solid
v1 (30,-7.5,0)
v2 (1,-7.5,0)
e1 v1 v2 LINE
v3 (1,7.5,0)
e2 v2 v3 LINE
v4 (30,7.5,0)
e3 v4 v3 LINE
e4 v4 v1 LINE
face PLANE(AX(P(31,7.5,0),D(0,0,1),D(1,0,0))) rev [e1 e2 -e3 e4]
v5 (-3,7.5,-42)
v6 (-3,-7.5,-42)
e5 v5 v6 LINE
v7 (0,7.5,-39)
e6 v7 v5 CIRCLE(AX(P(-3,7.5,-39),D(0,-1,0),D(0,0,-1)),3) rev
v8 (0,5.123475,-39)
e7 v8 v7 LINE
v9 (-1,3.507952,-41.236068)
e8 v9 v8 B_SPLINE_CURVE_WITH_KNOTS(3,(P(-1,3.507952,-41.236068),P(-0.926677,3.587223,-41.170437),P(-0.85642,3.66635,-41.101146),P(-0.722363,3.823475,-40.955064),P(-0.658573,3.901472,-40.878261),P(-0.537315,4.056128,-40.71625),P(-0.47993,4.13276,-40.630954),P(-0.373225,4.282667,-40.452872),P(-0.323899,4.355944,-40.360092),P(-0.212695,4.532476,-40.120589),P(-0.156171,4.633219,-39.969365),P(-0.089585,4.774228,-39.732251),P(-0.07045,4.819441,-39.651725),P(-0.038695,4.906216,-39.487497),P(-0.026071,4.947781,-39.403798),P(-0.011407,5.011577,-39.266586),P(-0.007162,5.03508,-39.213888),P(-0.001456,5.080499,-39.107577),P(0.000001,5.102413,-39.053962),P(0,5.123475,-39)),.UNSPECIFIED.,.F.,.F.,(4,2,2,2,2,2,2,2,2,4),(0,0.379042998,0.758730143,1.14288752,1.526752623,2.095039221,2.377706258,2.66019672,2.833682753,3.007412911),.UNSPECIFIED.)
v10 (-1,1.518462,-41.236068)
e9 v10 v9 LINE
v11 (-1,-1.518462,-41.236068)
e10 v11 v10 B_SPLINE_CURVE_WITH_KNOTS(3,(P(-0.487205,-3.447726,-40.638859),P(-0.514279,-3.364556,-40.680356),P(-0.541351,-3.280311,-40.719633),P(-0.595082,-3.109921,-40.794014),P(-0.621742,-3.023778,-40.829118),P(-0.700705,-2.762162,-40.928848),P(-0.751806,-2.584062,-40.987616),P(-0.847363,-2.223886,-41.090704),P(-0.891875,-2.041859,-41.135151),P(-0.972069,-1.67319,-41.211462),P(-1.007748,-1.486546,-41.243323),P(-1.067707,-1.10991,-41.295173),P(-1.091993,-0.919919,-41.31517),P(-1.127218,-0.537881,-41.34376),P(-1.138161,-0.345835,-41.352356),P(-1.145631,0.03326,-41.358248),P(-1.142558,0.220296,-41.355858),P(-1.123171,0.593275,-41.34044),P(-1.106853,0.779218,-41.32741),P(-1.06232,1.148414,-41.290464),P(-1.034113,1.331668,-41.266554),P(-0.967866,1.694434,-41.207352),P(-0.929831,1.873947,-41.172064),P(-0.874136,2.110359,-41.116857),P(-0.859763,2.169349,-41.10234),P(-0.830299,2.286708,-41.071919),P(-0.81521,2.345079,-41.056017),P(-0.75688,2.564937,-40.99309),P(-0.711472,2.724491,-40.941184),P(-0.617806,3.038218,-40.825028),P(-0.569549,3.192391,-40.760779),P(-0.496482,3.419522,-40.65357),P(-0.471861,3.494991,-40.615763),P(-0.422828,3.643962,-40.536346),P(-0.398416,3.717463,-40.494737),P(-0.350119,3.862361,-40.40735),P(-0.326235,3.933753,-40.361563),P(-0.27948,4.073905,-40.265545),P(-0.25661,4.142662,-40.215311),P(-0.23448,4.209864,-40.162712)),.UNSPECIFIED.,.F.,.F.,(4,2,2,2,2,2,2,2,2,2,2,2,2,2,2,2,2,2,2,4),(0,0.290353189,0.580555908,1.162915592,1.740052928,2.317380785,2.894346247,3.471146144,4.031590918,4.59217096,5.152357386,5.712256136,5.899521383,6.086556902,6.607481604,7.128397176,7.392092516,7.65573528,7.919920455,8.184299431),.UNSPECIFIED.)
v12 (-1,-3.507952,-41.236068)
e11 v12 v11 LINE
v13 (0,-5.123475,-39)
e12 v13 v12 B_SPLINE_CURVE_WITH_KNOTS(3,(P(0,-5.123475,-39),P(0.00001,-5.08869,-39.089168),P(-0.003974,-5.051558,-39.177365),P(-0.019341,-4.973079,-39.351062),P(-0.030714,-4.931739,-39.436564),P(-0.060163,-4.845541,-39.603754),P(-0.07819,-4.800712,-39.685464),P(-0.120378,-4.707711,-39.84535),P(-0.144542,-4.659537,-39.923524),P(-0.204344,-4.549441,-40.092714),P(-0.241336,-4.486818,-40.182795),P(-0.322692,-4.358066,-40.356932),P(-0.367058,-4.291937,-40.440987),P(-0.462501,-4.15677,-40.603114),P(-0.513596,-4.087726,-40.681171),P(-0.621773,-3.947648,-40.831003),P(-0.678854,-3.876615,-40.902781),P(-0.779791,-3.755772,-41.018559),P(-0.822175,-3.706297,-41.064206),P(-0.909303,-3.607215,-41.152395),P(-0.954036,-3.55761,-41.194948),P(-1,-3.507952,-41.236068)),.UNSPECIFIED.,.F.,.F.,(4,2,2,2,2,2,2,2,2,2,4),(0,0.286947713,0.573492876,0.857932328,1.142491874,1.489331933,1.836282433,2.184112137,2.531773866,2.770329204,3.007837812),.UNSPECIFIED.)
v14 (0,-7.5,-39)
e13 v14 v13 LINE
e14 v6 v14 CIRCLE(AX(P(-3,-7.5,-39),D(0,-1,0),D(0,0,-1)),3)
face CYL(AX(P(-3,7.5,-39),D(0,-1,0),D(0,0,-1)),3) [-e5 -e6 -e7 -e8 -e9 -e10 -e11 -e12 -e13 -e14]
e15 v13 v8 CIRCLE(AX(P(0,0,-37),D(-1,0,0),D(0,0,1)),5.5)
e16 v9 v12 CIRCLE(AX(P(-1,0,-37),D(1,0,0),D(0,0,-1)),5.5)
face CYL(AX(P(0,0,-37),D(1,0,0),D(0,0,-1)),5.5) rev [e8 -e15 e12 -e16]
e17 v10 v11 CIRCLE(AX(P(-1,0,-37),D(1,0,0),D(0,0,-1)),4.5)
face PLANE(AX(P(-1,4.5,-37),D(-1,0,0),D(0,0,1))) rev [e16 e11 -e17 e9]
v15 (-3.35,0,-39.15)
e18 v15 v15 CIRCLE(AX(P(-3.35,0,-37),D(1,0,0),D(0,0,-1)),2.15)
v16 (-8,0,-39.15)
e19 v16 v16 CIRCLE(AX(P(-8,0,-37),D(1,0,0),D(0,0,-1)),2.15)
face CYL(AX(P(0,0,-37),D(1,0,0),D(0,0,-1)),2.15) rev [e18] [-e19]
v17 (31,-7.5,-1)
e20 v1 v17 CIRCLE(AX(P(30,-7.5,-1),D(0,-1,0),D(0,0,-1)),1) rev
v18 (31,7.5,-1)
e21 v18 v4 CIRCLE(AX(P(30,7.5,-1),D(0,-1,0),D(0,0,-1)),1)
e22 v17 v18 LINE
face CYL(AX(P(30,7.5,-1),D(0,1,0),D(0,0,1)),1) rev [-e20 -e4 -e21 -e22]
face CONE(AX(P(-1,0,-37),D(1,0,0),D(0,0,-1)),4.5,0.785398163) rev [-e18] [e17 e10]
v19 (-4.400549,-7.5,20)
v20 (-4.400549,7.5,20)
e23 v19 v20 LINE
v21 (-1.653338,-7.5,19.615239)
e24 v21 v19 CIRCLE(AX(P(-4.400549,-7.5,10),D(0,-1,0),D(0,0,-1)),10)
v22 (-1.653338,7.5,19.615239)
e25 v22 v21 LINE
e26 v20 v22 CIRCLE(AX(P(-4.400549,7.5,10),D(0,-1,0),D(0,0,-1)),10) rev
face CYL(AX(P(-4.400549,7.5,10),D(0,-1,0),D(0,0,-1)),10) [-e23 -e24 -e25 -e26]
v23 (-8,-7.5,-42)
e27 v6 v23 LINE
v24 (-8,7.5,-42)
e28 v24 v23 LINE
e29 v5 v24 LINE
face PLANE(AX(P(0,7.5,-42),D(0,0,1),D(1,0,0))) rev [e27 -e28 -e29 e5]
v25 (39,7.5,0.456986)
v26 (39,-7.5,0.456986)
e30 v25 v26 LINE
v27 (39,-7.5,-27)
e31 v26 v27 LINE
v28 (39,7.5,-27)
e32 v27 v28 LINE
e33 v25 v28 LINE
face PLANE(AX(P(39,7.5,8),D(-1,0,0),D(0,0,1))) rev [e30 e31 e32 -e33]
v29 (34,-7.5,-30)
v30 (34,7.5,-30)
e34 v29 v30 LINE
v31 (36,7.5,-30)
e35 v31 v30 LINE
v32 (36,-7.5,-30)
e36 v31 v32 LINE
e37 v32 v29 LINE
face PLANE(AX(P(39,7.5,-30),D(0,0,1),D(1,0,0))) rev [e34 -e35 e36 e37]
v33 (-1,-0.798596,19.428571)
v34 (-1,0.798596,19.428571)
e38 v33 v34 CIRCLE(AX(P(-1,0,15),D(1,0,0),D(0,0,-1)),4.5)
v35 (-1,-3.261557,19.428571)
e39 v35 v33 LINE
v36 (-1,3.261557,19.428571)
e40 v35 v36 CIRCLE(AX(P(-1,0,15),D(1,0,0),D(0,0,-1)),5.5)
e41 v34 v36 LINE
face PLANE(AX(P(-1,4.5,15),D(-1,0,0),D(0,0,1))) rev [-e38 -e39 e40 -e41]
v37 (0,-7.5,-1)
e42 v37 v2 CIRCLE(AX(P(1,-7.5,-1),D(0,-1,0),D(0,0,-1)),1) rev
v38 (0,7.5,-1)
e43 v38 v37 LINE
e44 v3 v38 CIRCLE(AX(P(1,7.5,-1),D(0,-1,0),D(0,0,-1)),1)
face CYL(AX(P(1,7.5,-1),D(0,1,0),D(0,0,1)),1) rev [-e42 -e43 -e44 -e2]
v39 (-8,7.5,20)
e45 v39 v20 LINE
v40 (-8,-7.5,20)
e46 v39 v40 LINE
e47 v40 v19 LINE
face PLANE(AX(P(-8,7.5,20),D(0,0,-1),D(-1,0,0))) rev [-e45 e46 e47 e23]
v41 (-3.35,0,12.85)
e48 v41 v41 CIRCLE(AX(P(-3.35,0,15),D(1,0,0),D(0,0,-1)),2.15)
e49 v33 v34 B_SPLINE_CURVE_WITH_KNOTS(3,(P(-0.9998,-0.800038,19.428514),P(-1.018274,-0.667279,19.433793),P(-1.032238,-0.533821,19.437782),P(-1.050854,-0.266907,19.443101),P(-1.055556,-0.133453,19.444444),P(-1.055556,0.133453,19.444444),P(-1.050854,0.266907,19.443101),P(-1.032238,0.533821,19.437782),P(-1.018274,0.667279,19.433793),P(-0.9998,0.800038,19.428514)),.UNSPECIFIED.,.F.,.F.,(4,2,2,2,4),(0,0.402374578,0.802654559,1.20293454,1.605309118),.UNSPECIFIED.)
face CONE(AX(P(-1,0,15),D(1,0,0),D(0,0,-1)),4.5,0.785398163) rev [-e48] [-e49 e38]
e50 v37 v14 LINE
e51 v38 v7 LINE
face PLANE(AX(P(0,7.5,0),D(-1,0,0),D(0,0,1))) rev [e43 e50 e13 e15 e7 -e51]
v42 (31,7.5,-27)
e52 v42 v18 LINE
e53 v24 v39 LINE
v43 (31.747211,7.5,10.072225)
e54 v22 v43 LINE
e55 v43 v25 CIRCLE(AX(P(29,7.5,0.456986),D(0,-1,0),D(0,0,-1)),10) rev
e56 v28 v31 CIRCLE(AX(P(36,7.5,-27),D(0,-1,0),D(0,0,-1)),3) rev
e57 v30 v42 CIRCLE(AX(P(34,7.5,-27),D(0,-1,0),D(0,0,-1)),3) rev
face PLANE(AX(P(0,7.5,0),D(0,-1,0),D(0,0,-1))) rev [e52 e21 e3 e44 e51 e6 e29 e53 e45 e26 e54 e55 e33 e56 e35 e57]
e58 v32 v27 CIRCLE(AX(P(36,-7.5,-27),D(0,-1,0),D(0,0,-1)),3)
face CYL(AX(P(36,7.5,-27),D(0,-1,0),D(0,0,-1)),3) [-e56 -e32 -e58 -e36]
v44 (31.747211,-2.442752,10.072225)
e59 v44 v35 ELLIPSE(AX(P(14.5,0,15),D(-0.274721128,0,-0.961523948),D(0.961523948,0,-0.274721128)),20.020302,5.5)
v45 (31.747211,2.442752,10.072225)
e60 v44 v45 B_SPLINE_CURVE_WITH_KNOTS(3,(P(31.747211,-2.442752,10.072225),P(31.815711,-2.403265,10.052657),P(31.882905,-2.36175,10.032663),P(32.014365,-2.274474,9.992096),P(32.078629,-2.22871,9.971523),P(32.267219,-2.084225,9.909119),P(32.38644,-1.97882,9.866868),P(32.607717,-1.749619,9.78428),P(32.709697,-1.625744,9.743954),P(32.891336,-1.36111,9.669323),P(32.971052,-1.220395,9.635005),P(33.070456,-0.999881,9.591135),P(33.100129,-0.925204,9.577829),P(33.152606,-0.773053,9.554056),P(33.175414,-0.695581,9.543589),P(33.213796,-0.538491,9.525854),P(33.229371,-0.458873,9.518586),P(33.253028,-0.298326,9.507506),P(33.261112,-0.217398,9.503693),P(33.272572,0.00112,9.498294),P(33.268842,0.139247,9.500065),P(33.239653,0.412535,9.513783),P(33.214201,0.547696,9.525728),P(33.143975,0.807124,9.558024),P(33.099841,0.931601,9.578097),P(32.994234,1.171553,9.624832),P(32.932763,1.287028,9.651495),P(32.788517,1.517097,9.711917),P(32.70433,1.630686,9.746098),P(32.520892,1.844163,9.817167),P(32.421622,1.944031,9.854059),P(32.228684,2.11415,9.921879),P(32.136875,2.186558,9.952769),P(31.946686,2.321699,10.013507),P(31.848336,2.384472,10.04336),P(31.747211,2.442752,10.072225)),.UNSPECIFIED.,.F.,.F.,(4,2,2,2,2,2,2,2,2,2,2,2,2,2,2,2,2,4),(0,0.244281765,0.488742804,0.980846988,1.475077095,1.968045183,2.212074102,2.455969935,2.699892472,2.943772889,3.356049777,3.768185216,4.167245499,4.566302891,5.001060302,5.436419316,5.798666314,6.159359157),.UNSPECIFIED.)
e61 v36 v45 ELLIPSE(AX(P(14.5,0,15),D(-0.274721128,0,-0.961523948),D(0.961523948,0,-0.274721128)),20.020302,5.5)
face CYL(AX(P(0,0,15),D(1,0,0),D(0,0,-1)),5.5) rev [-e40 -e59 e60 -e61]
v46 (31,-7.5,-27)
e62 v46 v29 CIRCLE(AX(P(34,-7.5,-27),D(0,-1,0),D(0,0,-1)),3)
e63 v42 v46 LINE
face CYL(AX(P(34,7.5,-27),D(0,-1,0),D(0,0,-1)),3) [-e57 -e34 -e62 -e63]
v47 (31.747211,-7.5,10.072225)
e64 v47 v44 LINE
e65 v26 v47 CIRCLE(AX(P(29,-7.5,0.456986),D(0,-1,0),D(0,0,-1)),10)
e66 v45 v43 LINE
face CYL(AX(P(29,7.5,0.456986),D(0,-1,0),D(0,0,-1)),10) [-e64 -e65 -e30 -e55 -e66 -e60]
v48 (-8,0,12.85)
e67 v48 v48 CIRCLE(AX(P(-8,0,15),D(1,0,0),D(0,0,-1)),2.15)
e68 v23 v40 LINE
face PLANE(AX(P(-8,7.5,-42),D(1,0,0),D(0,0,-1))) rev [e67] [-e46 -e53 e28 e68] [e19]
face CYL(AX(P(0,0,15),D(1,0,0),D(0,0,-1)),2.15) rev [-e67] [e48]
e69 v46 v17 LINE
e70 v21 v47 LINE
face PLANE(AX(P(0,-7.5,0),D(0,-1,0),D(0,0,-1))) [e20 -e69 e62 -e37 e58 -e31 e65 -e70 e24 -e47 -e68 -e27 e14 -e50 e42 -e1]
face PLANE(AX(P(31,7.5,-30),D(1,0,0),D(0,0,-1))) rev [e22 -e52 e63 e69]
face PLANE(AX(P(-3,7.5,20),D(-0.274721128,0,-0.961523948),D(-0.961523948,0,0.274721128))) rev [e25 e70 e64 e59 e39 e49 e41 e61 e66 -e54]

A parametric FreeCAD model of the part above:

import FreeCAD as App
import Part
import Sketcher
from FreeCAD import Vector
Q = App.Units.Quantity


def edges_at(feature, points):
    """Names of the edges that pass closest to the given points."""
    edges = feature.Shape.Edges
    near = lambda p: min(range(len(edges)), key=lambda i: edges[i].distToShape(Part.Vertex(*p))[0])
    return sorted({f"Edge{near(p) + 1}" for p in points})

doc = App.newDocument("Part")
body = doc.addObject("PartDesign::Body", "Body")

# Sketch on XZ plane
sketch1 = doc.addObject("Sketcher::SketchObject", "Sketch")
body.addObject(sketch1)
sketch1.AttachmentSupport = (doc.XZ_Plane, [""])
sketch1.MapMode = "FlatFace"
sketch1.addGeometry([
    Part.LineSegment(Vector(0, 0, 0), Vector(0, -42, 0)),  # 0
    Part.LineSegment(Vector(0, -42, 0), Vector(-8, -42, 0)),  # 1
    Part.LineSegment(Vector(-8, -42, 0), Vector(-8, 20, 0)),  # 2
    Part.LineSegment(Vector(-8, 20, 0), Vector(-3, 20, 0)),  # 3
    Part.LineSegment(Vector(-3, 20, 0), Vector(39, 8, 0)),  # 4
    Part.LineSegment(Vector(39, 8, 0), Vector(39, -30, 0)),  # 5
    Part.LineSegment(Vector(39, -30, 0), Vector(31, -30, 0)),  # 6
    Part.LineSegment(Vector(31, -30, 0), Vector(31, 0, 0)),  # 7
    Part.LineSegment(Vector(31, 0, 0), Vector(0, 0, 0)),  # 8
], False)
sketch1.addConstraint([
    Sketcher.Constraint("Coincident", 0, 2, 1, 1),
    Sketcher.Constraint("Coincident", 1, 2, 2, 1),
    Sketcher.Constraint("Coincident", 2, 2, 3, 1),
    Sketcher.Constraint("Coincident", 3, 2, 4, 1),
    Sketcher.Constraint("Coincident", 4, 2, 5, 1),
    Sketcher.Constraint("Coincident", 5, 2, 6, 1),
    Sketcher.Constraint("Coincident", 6, 2, 7, 1),
    Sketcher.Constraint("Coincident", 7, 2, 8, 1),
    Sketcher.Constraint("Coincident", 8, 2, 0, 1),
    Sketcher.Constraint("Vertical", 0),
    Sketcher.Constraint("Horizontal", 1),
    Sketcher.Constraint("Vertical", 2),
    Sketcher.Constraint("Horizontal", 3),
    Sketcher.Constraint("Vertical", 5),
    Sketcher.Constraint("Horizontal", 6),
    Sketcher.Constraint("Vertical", 7),
    Sketcher.Constraint("Horizontal", 8),
    Sketcher.Constraint("Coincident", 8, 2, -1, 1),
    Sketcher.Constraint("Equal", 1, 6),
    Sketcher.Constraint("DistanceX", 1, 2, 1, 1, Q("8 mm")),
    Sketcher.Constraint("DistanceX", 3, 1, 3, 2, Q("5 mm")),
    Sketcher.Constraint("DistanceX", 8, 2, 8, 1, Q("31 mm")),
    Sketcher.Constraint("DistanceY", 0, 2, 0, 1, Q("42 mm")),
    Sketcher.Constraint("DistanceY", 2, 1, 2, 2, Q("62 mm")),
    Sketcher.Constraint("DistanceY", 5, 2, 5, 1, Q("38 mm")),
    Sketcher.Constraint("DistanceY", 7, 1, 7, 2, Q("30 mm")),
])
pad1 = doc.addObject("PartDesign::Pad", "Pad")
body.addObject(pad1)
pad1.Profile = sketch1
pad1.Length = 15
pad1.Midplane = True
doc.recompute()

fillet = doc.addObject("PartDesign::Fillet", "Fillet")
body.addObject(fillet)
fillet.Base = (pad1, edges_at(pad1, [(31, 0, 0), (0, 0, 0)]))
fillet.Radius = 1
doc.recompute()

fillet2 = doc.addObject("PartDesign::Fillet", "Fillet001")
body.addObject(fillet2)
fillet2.Base = (fillet, edges_at(fillet, [(39, 0, 8), (-3, 0, 20)]))
fillet2.Radius = 10
doc.recompute()

fillet3 = doc.addObject("PartDesign::Fillet", "Fillet002")
body.addObject(fillet3)
fillet3.Base = (fillet2, edges_at(fillet2, [(31, 0, -30), (39, 0, -30), (0, 0, -42)]))
fillet3.Radius = 3

# Sketch on XZ plane
sketch2 = doc.addObject("Sketcher::SketchObject", "Sketch001")
body.addObject(sketch2)
sketch2.AttachmentSupport = (doc.XZ_Plane, [""])
sketch2.MapMode = "FlatFace"
sketch2.addGeometry([
    Part.LineSegment(Vector(-8, -37, 0), Vector(39, -37, 0)),  # 0
    Part.LineSegment(Vector(39, -37, 0), Vector(39, -42.5, 0)),  # 1
    Part.LineSegment(Vector(39, -42.5, 0), Vector(-1, -42.5, 0)),  # 2
    Part.LineSegment(Vector(-1, -42.5, 0), Vector(-1, -41.5, 0)),  # 3
    Part.LineSegment(Vector(-1, -41.5, 0), Vector(-3.4, -39.1, 0)),  # 4
    Part.LineSegment(Vector(-3.4, -39.1, 0), Vector(-8, -39.1, 0)),  # 5
    Part.LineSegment(Vector(-8, -39.1, 0), Vector(-8, -37, 0)),  # 6
], False)
sketch2.addGeometry(Part.LineSegment(Vector(39, -37, 0), Vector(-8, -37, 0)), True)  # axis
sketch2.addConstraint([
    Sketcher.Constraint("Coincident", 0, 2, 1, 1),
    Sketcher.Constraint("Coincident", 1, 2, 2, 1),
    Sketcher.Constraint("Coincident", 2, 2, 3, 1),
    Sketcher.Constraint("Coincident", 3, 2, 4, 1),
    Sketcher.Constraint("Coincident", 4, 2, 5, 1),
    Sketcher.Constraint("Coincident", 5, 2, 6, 1),
    Sketcher.Constraint("Coincident", 6, 2, 0, 1),
    Sketcher.Constraint("Horizontal", 0),
    Sketcher.Constraint("Vertical", 1),
    Sketcher.Constraint("Horizontal", 2),
    Sketcher.Constraint("Vertical", 3),
    Sketcher.Constraint("Horizontal", 5),
    Sketcher.Constraint("Vertical", 6),
    Sketcher.Constraint("Horizontal", 7),
    Sketcher.Constraint("Coincident", 7, 1, 0, 2),
    Sketcher.Constraint("Vertical", 5, 2, 7, 2),
    Sketcher.Constraint("DistanceX", 0, 1, 0, 2, Q("47 mm")),
    Sketcher.Constraint("DistanceX", 2, 2, 2, 1, Q("40 mm")),
    Sketcher.Constraint("DistanceY", 3, 1, 3, 2, Q("1 mm")),
    Sketcher.Constraint("Angle", 4, Q("135 deg")),
    Sketcher.Constraint("DistanceY", 1, 2, 1, 1, Q("5.5 mm")),
    Sketcher.Constraint("DistanceX", -1, 1, 0, 2, Q("39 mm")),
    Sketcher.Constraint("DistanceY", 0, 2, -1, 1, Q("37 mm")),
    Sketcher.Constraint("DistanceX", 5, 2, 5, 1, Q("4.65 mm")),
])
groove = doc.addObject("PartDesign::Groove", "Groove")
body.addObject(groove)
groove.Profile = sketch2
groove.ReferenceAxis = (sketch2, ["Axis0"])
groove.Angle = 360
doc.recompute()

linearpattern = doc.addObject("PartDesign::LinearPattern", "LinearPattern")
body.addObject(linearpattern)
linearpattern.Originals = [groove]
linearpattern.Direction = (doc.Z_Axis, [""])
linearpattern.Mode = "offset"
linearpattern.Offset = 52
linearpattern.Occurrences = 2
body.Tip = linearpattern

doc.recompute()
